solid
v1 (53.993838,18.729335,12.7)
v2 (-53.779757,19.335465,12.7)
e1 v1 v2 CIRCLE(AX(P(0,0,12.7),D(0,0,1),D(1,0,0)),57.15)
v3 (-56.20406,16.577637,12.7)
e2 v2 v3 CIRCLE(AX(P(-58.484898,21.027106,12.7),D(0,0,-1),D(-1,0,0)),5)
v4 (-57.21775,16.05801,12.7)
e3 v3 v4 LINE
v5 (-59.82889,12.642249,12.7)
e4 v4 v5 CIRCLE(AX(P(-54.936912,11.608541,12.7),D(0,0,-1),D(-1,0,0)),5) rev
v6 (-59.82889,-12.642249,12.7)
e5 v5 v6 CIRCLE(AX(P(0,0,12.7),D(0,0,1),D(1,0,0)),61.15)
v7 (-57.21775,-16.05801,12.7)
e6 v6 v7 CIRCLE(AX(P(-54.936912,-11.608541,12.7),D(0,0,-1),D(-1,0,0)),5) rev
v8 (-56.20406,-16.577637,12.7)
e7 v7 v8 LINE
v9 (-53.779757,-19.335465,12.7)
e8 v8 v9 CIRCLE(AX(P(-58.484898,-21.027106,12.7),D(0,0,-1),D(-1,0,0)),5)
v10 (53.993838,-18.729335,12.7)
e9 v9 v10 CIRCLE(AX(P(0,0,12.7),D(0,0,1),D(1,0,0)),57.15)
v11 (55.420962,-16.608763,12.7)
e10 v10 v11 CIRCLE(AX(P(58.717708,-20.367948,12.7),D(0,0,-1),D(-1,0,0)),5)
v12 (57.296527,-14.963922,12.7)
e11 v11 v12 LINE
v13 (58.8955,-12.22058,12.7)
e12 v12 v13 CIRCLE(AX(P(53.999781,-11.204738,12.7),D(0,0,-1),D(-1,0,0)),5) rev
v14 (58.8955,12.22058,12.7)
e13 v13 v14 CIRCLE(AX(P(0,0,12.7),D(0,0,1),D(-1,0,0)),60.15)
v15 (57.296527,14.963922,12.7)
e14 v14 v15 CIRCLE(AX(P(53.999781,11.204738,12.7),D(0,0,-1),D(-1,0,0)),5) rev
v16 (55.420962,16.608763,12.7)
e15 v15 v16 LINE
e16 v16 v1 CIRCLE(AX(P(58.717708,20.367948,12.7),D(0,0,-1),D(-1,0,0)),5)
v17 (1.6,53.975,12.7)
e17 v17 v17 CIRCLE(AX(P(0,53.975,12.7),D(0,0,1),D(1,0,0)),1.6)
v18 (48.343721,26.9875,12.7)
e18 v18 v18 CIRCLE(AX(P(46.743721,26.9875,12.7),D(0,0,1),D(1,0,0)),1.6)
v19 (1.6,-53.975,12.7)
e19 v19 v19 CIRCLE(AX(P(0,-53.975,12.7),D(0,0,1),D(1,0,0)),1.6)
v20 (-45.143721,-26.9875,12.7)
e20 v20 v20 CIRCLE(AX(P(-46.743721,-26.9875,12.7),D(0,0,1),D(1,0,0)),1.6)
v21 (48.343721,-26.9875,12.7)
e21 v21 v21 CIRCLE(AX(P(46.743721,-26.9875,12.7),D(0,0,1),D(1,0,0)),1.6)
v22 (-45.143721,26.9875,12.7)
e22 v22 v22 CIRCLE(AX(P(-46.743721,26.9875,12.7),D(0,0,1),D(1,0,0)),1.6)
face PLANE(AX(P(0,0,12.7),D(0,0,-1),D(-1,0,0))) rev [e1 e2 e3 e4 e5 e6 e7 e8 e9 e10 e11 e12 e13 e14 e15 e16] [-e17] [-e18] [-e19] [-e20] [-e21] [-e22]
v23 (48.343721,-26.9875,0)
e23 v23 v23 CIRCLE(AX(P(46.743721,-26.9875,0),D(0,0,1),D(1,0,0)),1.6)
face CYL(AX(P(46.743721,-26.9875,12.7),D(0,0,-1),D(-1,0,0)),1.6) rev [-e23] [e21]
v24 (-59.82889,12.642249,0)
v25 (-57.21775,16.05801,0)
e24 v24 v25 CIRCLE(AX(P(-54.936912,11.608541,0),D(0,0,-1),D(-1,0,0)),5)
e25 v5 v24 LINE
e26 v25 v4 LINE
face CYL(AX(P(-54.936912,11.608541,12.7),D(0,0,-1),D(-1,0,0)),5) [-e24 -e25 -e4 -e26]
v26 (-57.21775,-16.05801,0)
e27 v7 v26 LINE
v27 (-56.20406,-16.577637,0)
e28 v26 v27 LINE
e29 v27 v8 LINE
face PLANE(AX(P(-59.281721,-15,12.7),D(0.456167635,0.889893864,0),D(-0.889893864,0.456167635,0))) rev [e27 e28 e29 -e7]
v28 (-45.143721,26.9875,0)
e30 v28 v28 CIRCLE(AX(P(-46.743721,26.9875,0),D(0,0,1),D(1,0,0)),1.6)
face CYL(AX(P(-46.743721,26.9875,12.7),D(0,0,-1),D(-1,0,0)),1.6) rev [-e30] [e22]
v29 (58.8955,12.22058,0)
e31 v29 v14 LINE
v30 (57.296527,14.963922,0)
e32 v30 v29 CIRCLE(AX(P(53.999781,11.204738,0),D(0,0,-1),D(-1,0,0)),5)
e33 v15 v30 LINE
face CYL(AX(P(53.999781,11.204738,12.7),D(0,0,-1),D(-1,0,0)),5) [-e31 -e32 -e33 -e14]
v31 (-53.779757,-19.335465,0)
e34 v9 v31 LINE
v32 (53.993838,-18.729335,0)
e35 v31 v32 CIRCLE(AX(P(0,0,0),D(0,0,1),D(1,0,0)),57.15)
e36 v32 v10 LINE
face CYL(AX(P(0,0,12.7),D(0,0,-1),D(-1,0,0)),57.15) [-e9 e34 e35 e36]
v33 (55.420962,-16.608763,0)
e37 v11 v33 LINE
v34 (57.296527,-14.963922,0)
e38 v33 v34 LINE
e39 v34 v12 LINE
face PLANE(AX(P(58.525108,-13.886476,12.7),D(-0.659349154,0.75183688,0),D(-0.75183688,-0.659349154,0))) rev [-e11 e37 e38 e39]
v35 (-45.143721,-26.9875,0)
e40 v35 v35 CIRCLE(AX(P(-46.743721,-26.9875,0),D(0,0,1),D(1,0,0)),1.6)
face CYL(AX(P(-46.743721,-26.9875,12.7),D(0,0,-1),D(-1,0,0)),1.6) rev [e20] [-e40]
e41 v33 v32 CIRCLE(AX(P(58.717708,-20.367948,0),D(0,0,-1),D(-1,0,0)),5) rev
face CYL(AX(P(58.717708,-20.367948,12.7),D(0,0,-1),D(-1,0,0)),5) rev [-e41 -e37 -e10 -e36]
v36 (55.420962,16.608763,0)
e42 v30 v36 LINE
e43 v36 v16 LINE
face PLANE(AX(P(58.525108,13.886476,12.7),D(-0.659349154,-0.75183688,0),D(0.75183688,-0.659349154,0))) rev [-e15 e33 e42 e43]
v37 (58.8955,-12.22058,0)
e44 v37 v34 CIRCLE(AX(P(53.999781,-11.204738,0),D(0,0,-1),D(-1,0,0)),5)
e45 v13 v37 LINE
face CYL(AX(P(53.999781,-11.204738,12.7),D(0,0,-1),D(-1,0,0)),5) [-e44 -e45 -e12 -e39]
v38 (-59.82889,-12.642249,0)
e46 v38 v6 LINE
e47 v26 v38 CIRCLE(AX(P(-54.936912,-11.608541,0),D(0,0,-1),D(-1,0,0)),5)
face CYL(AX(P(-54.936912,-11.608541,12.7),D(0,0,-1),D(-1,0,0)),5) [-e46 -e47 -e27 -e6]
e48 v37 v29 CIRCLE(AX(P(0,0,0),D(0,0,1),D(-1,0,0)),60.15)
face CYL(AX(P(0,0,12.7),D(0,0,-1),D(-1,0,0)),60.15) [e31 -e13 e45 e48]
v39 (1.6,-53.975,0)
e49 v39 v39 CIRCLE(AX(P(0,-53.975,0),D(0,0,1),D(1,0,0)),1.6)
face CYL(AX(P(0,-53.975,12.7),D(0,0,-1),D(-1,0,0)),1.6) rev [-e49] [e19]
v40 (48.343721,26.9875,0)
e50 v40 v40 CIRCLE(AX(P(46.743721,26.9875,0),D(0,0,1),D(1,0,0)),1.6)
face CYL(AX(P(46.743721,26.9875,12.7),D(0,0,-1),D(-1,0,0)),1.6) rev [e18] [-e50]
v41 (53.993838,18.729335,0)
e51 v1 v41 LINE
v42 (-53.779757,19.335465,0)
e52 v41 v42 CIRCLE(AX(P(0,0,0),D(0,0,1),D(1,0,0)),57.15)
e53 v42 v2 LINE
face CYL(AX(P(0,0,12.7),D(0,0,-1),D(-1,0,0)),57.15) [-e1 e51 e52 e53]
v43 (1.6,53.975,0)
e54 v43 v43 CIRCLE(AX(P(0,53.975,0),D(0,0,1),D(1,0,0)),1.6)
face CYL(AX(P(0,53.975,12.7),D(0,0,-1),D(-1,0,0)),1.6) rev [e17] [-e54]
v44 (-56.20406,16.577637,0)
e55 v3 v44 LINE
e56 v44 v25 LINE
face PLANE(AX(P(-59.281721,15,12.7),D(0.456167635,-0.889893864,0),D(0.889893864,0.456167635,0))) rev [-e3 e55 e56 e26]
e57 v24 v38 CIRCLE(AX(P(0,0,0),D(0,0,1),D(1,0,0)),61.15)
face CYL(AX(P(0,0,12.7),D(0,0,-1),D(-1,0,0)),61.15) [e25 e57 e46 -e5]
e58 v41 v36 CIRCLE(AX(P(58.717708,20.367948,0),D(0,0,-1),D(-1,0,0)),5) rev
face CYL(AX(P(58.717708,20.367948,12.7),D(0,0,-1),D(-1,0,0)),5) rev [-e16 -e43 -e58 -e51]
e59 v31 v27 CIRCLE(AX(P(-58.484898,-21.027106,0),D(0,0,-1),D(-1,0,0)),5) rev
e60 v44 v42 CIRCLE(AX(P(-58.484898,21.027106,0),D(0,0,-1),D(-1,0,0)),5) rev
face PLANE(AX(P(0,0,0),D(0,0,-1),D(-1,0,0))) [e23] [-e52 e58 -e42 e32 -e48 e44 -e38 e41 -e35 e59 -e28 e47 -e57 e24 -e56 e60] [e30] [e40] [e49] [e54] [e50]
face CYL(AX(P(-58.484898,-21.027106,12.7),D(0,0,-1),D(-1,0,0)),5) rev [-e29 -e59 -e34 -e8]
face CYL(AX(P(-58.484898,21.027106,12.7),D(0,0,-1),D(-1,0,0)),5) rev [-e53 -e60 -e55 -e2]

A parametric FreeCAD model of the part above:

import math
import FreeCAD as App
import Part
import Sketcher


def edges_at(feature, points):
    """Names of the edges that pass closest to the given points."""
    edges = feature.Shape.Edges
    near = lambda p: min(range(len(edges)), key=lambda i: edges[i].distToShape(Part.Vertex(*p))[0])
    return sorted({f"Edge{near(p) + 1}" for p in points})

doc = App.newDocument("Part")
body = doc.addObject("PartDesign::Body", "Body")

# Sketch on XY plane
sketch1 = body.newObject("Sketcher::SketchObject", "Sketch")
sketch1.AttachmentSupport = (doc.getObject("XY_Plane"), [""])
sketch1.MapMode = "FlatFace"
sketch1.addGeometry(Part.LineSegment(App.Vector(-54.4, 17.5, 0), App.Vector(-59.3, 15, 0)), False)
sketch1.addGeometry(Part.ArcOfCircle(Part.Circle(App.Vector(0, 0, 0), App.Vector(0, 0, 1), 61.1), math.radians(166), math.radians(194)), False)
sketch1.addGeometry(Part.LineSegment(App.Vector(-59.3, -15, 0), App.Vector(-54.4, -17.5, 0)), False)
sketch1.addGeometry(Part.ArcOfCircle(Part.Circle(App.Vector(0, 0, 0), App.Vector(0, 0, 1), 57.1), math.radians(-162), math.radians(-18)), False)
sketch1.addGeometry(Part.LineSegment(App.Vector(54.4, -17.5, 0), App.Vector(58.5, -13.9, 0)), False)
sketch1.addGeometry(Part.ArcOfCircle(Part.Circle(App.Vector(0, 0, 0), App.Vector(0, 0, 1), 60.2), math.radians(-13), math.radians(13)), False)
sketch1.addGeometry(Part.LineSegment(App.Vector(58.5, 13.9, 0), App.Vector(54.4, 17.5, 0)), False)
sketch1.addGeometry(Part.ArcOfCircle(Part.Circle(App.Vector(0, 0, 0), App.Vector(0, 0, 1), 57.1), math.radians(18), math.radians(162)), False)
sketch1.addGeometry(Part.Circle(App.Vector(46.7, -27, 0), App.Vector(0, 0, 1), 1.6), False)
sketch1.addGeometry(Part.Circle(App.Vector(0, -54, 0), App.Vector(0, 0, 1), 1.6), False)
sketch1.addGeometry(Part.Circle(App.Vector(-46.7, -27, 0), App.Vector(0, 0, 1), 1.6), False)
sketch1.addGeometry(Part.Circle(App.Vector(46.7, 27, 0), App.Vector(0, 0, 1), 1.6), False)
sketch1.addGeometry(Part.Circle(App.Vector(-46.7, 27, 0), App.Vector(0, 0, 1), 1.6), False)
sketch1.addGeometry(Part.Circle(App.Vector(0, 54, 0), App.Vector(0, 0, 1), 1.6), False)
sketch1.addConstraint(Sketcher.Constraint("Coincident", 0, 2, 1, 1))
sketch1.addConstraint(Sketcher.Constraint("Coincident", 1, 2, 2, 1))
sketch1.addConstraint(Sketcher.Constraint("Coincident", 2, 2, 3, 1))
sketch1.addConstraint(Sketcher.Constraint("Coincident", 3, 2, 4, 1))
sketch1.addConstraint(Sketcher.Constraint("Coincident", 4, 2, 5, 1))
sketch1.addConstraint(Sketcher.Constraint("Coincident", 5, 2, 6, 1))
sketch1.addConstraint(Sketcher.Constraint("Coincident", 6, 2, 7, 1))
sketch1.addConstraint(Sketcher.Constraint("Coincident", 7, 2, 0, 1))
sketch1.addConstraint(Sketcher.Constraint("Coincident", 1, 3, -1, 1))
sketch1.addConstraint(Sketcher.Constraint("Coincident", 3, 3, -1, 1))
sketch1.addConstraint(Sketcher.Constraint("Coincident", 5, 3, -1, 1))
sketch1.addConstraint(Sketcher.Constraint("Coincident", 7, 3, -1, 1))
sketch1.addConstraint(Sketcher.Constraint("Equal", 3, 7))
sketch1.addConstraint(Sketcher.Constraint("Equal", 8, 9))
sketch1.addConstraint(Sketcher.Constraint("Equal", 9, 10))
sketch1.addConstraint(Sketcher.Constraint("Equal", 10, 11))
sketch1.addConstraint(Sketcher.Constraint("Equal", 11, 12))
sketch1.addConstraint(Sketcher.Constraint("Equal", 12, 13))
sketch1.addConstraint(Sketcher.Constraint("Symmetric", 10, 3, 11, 3, -1, 1))
sketch1.addConstraint(Sketcher.Constraint("Symmetric", 8, 3, 12, 3, -1, 1))
sketch1.addConstraint(Sketcher.Constraint("Symmetric", 9, 3, 13, 3, -1, 1))
sketch1.addConstraint(Sketcher.Constraint("Symmetric", 8, 3, 10, 3, -2))
sketch1.addConstraint(Sketcher.Constraint("PointOnObject", 9, 3, -2))
sketch1.addConstraint(Sketcher.Constraint("Horizontal", 2, 2, 3, 2))
sketch1.addConstraint(Sketcher.Constraint("Horizontal", 6, 2, 7, 2))
sketch1.addConstraint(Sketcher.Constraint("Vertical", 0, 2, 1, 2))
sketch1.addConstraint(Sketcher.Constraint("Vertical", 4, 2, 5, 2))
sketch1.addConstraint(Sketcher.Constraint("Vertical", 3, 2, 6, 2))
sketch1.addConstraint(Sketcher.Constraint("Equal", 2, 4))
sketch1.addConstraint(Sketcher.Constraint("Diameter", 8, 3.2))
sketch1.addConstraint(Sketcher.Constraint("Radius", 1, 61.15))
sketch1.addConstraint(Sketcher.Constraint("Radius", 3, 57.15))
sketch1.addConstraint(Sketcher.Constraint("Radius", 5, 60.15))
sketch1.addConstraint(Sketcher.Constraint("DistanceY", -1, 1, 0, 2, 15.0))
sketch1.addConstraint(Sketcher.Constraint("DistanceY", 3, 2, 6, 2, 35.0))
sketch1.addConstraint(Sketcher.Constraint("DistanceY", 9, 3, -1, 1, 53.975))
sketch1.addConstraint(Sketcher.Constraint("DistanceY", 8, 3, 11, 3, 53.975))
sketch1.addConstraint(Sketcher.Constraint("DistanceX", 0, 2, 12, 3, 12.538))
pad1 = body.newObject("PartDesign::Pad", "Pad")
pad1.Profile = sketch1
pad1.Length = 12.7
doc.recompute()

fillet = body.newObject("PartDesign::Fillet", "Fillet")
fillet.Base = (pad1, edges_at(pad1, [
    (58.525, -13.886, 6.35),
    (54.405, -17.5, 6.35),
    (-54.405, -17.5, 6.35),
    (-59.282, -15, 6.35),
    (-59.282, 15, 6.35),
    (-54.405, 17.5, 6.35),
    (54.405, 17.5, 6.35),
    (58.525, 13.886, 6.35),
]))
fillet.Radius = 5

doc.recompute()
